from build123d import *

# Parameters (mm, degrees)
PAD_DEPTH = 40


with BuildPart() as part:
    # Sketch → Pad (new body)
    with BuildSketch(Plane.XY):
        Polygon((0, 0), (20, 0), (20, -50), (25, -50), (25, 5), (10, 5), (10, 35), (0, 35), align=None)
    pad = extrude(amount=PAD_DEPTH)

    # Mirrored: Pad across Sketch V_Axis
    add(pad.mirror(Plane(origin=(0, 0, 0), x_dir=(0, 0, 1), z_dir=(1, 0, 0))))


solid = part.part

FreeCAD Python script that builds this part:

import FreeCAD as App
import Part
import Sketcher


def add_polygon(sketch, points):
    """Adds a closed chain of lines whose ends are joined by coincident constraints."""
    first, n = sketch.GeometryCount, len(points)
    for a, b in zip(points, points[1:] + points[:1]):
        sketch.addGeometry(Part.LineSegment(App.Vector(*a, 0), App.Vector(*b, 0)), False)
    for i in range(n):
        sketch.addConstraint(Sketcher.Constraint("Coincident", first + i, 2, first + (i + 1) % n, 1))

doc = App.newDocument("Part")
params = doc.addObject("Spreadsheet::Sheet", "Params")
for row, (alias, value) in enumerate([
    ("sketch1_width", "20 mm"),
    ("sketch1_width2", "5 mm"),
    ("sketch1_width3", "15 mm"),
    ("sketch1_height", "50 mm"),
    ("sketch1_height2", "55 mm"),
    ("pad1_length", "40 mm"),
], start=1):
    params.set(f"A{row}", alias)
    params.set(f"B{row}", "=" + value)
    params.setAlias(f"B{row}", alias)

body = doc.addObject("PartDesign::Body", "Body")

sketch1 = doc.addObject("Sketcher::SketchObject", "Sketch")
body.addObject(sketch1)
sketch1.AttachmentSupport = (doc.XY_Plane, [""])
sketch1.MapMode = "FlatFace"
add_polygon(sketch1, [(0, 0), (20, 0), (20, -50), (25, -50), (25, 5), (10, 5), (10, 35), (0, 35)])
sketch1.addConstraint([
    Sketcher.Constraint("Horizontal", 0),
    Sketcher.Constraint("Vertical", 1),
    Sketcher.Constraint("Horizontal", 2),
    Sketcher.Constraint("Vertical", 3),
    Sketcher.Constraint("Horizontal", 4),
    Sketcher.Constraint("Vertical", 5),
    Sketcher.Constraint("Horizontal", 6),
    Sketcher.Constraint("Vertical", 7),
    Sketcher.Constraint("Coincident", 7, 2, -1, 1),
    Sketcher.Constraint("DistanceX", 0, 1, 0, 2, 20.0),
    Sketcher.Constraint("DistanceX", 2, 1, 2, 2, 5.0),
    Sketcher.Constraint("DistanceX", 4, 2, 4, 1, 15.0),
    Sketcher.Constraint("DistanceY", 1, 2, 1, 1, 50.0),
    Sketcher.Constraint("DistanceY", 3, 1, 3, 2, 55.0),
    Sketcher.Constraint("DistanceY", 5, 1, 5, 2, 30.0),
])
sketch1.setExpression("Constraints[17]", "Params.sketch1_width")
sketch1.setExpression("Constraints[18]", "Params.sketch1_width2")
sketch1.setExpression("Constraints[19]", "Params.sketch1_width3")
sketch1.setExpression("Constraints[20]", "Params.sketch1_height")
sketch1.setExpression("Constraints[21]", "Params.sketch1_height2")
pad1 = doc.addObject("PartDesign::Pad", "Pad")
body.addObject(pad1)
pad1.Profile = sketch1
pad1.setExpression("Length", "Params.pad1_length")
doc.recompute()

mirrored = doc.addObject("PartDesign::Mirrored", "Mirrored")
body.addObject(mirrored)
mirrored.Originals = [pad1]
mirrored.MirrorPlane = (doc.YZ_Plane, [""])
body.Tip = mirrored

doc.recompute()
